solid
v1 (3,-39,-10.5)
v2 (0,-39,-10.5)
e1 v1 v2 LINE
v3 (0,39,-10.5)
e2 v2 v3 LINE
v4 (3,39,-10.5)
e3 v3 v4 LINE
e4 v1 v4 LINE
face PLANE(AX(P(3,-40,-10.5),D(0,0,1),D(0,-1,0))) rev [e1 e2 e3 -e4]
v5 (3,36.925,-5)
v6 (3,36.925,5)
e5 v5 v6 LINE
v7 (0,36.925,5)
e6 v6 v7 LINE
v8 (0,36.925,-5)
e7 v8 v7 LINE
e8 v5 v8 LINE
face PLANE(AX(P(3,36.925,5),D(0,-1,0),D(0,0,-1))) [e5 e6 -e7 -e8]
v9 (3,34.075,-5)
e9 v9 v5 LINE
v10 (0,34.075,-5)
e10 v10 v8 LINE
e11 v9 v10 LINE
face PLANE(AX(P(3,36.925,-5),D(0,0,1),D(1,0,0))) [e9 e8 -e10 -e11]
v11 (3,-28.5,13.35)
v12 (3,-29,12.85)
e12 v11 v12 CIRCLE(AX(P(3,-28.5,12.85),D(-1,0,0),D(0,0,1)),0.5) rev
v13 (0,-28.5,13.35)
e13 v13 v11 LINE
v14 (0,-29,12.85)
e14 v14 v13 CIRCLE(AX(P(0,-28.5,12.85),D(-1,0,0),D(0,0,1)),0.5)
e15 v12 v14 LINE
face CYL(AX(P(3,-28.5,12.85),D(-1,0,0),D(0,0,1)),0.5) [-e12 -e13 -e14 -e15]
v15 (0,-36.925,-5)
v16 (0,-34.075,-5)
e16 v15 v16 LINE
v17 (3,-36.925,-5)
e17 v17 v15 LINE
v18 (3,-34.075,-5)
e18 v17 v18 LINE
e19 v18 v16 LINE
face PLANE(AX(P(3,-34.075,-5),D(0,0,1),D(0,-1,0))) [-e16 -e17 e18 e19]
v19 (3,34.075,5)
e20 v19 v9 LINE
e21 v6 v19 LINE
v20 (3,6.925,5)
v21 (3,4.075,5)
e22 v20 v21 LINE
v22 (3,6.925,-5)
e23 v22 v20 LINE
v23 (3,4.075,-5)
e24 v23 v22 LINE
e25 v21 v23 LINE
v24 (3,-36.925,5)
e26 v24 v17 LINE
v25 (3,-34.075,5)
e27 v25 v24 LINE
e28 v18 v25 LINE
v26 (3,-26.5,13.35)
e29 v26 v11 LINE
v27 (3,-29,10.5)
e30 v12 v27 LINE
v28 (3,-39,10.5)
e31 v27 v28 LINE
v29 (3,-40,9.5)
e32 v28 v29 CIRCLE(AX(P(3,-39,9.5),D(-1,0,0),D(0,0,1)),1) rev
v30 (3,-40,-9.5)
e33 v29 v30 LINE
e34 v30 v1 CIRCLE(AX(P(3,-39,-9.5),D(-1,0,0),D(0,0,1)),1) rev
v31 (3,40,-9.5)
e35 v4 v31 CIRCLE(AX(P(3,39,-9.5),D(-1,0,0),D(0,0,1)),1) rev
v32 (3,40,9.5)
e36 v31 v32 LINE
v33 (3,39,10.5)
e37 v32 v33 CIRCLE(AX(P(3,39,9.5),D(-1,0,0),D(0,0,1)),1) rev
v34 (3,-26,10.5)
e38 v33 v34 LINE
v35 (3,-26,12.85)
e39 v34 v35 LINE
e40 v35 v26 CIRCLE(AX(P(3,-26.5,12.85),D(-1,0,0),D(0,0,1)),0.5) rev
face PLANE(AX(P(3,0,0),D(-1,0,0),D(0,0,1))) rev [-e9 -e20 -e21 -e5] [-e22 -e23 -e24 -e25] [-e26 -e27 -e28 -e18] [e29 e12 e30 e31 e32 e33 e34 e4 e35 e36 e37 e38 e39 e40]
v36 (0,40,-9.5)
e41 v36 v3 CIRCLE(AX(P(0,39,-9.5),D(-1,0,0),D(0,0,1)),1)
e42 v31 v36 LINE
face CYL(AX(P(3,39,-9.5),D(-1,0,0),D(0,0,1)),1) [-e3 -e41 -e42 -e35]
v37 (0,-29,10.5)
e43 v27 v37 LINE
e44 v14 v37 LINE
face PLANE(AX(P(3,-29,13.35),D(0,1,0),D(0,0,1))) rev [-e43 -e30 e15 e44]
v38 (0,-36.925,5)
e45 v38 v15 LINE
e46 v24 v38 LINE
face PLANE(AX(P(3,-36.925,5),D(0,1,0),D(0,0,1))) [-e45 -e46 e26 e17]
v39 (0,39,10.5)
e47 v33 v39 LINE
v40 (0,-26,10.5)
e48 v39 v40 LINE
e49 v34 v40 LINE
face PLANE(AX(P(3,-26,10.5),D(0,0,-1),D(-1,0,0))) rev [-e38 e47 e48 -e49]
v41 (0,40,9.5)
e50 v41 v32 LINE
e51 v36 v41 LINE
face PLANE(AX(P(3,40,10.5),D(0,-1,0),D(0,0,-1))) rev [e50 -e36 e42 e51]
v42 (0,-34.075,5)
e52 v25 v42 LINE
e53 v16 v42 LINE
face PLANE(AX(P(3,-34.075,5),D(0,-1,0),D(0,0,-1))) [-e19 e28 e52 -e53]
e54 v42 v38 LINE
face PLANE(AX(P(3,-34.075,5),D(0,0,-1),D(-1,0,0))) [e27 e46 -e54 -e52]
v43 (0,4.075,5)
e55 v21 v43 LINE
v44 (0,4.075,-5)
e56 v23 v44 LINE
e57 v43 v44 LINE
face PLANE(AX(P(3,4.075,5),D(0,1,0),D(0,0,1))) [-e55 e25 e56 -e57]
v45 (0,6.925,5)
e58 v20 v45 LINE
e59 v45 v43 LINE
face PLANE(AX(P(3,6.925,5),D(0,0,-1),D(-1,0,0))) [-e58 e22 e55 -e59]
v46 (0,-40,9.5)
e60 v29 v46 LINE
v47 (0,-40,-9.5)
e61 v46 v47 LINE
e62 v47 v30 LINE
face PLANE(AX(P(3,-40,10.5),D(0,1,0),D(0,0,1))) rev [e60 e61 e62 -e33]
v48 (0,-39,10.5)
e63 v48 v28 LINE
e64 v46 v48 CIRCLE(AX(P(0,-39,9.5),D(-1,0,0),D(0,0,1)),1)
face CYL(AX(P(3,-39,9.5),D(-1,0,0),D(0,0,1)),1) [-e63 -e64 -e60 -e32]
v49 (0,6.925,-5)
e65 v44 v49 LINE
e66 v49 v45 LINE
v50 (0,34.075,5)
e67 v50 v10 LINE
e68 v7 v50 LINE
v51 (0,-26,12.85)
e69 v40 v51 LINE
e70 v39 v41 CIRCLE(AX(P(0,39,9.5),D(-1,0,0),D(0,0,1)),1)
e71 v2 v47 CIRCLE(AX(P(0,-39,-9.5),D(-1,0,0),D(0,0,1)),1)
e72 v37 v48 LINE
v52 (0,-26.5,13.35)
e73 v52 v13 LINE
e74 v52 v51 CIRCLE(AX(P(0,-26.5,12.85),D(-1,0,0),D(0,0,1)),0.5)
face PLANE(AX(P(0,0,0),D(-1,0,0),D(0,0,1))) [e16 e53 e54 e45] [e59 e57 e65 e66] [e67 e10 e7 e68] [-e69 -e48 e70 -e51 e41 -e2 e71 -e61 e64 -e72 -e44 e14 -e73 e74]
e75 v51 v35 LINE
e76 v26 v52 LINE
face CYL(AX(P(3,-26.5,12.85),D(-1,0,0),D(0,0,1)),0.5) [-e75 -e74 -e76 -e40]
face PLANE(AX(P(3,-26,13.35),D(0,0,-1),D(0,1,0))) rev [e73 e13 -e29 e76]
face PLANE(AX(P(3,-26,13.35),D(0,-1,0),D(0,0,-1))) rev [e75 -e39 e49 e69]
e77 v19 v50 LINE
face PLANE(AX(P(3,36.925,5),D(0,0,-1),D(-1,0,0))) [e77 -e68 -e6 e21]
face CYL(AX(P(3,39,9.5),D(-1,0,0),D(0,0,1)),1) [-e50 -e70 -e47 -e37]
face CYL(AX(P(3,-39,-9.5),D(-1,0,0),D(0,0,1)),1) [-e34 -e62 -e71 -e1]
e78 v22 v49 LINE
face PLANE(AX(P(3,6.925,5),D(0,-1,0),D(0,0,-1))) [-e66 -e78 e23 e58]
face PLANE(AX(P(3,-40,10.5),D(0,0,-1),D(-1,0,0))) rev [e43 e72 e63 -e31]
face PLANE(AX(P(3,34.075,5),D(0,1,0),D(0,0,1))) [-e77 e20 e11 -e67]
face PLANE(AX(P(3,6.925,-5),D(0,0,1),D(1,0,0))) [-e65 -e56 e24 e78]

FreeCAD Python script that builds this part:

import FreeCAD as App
import Part
import Sketcher
from FreeCAD import Vector
Q = App.Units.Quantity


def edges_at(feature, points):
    """Names of the edges that pass closest to the given points."""
    edges = feature.Shape.Edges
    near = lambda p: min(range(len(edges)), key=lambda i: edges[i].distToShape(Part.Vertex(*p))[0])
    return sorted({f"Edge{near(p) + 1}" for p in points})

doc = App.newDocument("Part")
params = doc.addObject("Spreadsheet::Sheet", "Params")
for row, (alias, value) in enumerate([
    ("sketch1_width", "80 mm"),
    ("sketch1_width2", "66 mm"),
    ("sketch1_width3", "3 mm"),
    ("sketch1_height", "21 mm"),
    ("sketch1_height2", "10 mm"),
    ("pad1_length", "3 mm"),
    ("fillet_radius", "1 mm"),
    ("fillet2_radius", "0.5 mm"),
], start=1):
    params.set(f"A{row}", alias)
    params.set(f"B{row}", "=" + value)
    params.setAlias(f"B{row}", alias)

body = doc.addObject("PartDesign::Body", "Body")

sketch1 = body.newObject("Sketcher::SketchObject", "Sketch")
sketch1.AttachmentSupport = (doc.getObject("YZ_Plane"), [""])
sketch1.MapMode = "FlatFace"
sketch1.addGeometry([
    Part.LineSegment(Vector(-40, 10.5, 0), Vector(-40, -10.5, 0)),
    Part.LineSegment(Vector(-40, -10.5, 0), Vector(40, -10.5, 0)),
    Part.LineSegment(Vector(40, -10.5, 0), Vector(40, 10.5, 0)),
    Part.LineSegment(Vector(40, 10.5, 0), Vector(-26, 10.5, 0)),
    Part.LineSegment(Vector(-26, 10.5, 0), Vector(-26, 13.3, 0)),
    Part.LineSegment(Vector(-26, 13.3, 0), Vector(-29, 13.3, 0)),
    Part.LineSegment(Vector(-29, 13.3, 0), Vector(-29, 10.5, 0)),
    Part.LineSegment(Vector(-29, 10.5, 0), Vector(-40, 10.5, 0)),
    Part.LineSegment(Vector(-36.9, -5, 0), Vector(-36.9, 5, 0)),
    Part.LineSegment(Vector(-36.9, 5, 0), Vector(-34.1, 5, 0)),
    Part.LineSegment(Vector(-34.1, 5, 0), Vector(-34.1, -5, 0)),
    Part.LineSegment(Vector(-34.1, -5, 0), Vector(-36.9, -5, 0)),
    Part.LineSegment(Vector(4.1, -5, 0), Vector(4.1, 5, 0)),
    Part.LineSegment(Vector(4.1, 5, 0), Vector(6.9, 5, 0)),
    Part.LineSegment(Vector(6.9, 5, 0), Vector(6.9, -5, 0)),
    Part.LineSegment(Vector(6.9, -5, 0), Vector(4.1, -5, 0)),
    Part.LineSegment(Vector(34.1, -5, 0), Vector(34.1, 5, 0)),
    Part.LineSegment(Vector(34.1, 5, 0), Vector(36.9, 5, 0)),
    Part.LineSegment(Vector(36.9, 5, 0), Vector(36.9, -5, 0)),
    Part.LineSegment(Vector(36.9, -5, 0), Vector(34.1, -5, 0)),
], False)
sketch1.addConstraint([
    Sketcher.Constraint("Coincident", 0, 2, 1, 1),
    Sketcher.Constraint("Coincident", 1, 2, 2, 1),
    Sketcher.Constraint("Coincident", 2, 2, 3, 1),
    Sketcher.Constraint("Coincident", 3, 2, 4, 1),
    Sketcher.Constraint("Coincident", 4, 2, 5, 1),
    Sketcher.Constraint("Coincident", 5, 2, 6, 1),
    Sketcher.Constraint("Coincident", 6, 2, 7, 1),
    Sketcher.Constraint("Coincident", 7, 2, 0, 1),
    Sketcher.Constraint("Coincident", 8, 2, 9, 1),
    Sketcher.Constraint("Coincident", 9, 2, 10, 1),
    Sketcher.Constraint("Coincident", 10, 2, 11, 1),
    Sketcher.Constraint("Coincident", 11, 2, 8, 1),
    Sketcher.Constraint("Coincident", 12, 2, 13, 1),
    Sketcher.Constraint("Coincident", 13, 2, 14, 1),
    Sketcher.Constraint("Coincident", 14, 2, 15, 1),
    Sketcher.Constraint("Coincident", 15, 2, 12, 1),
    Sketcher.Constraint("Coincident", 16, 2, 17, 1),
    Sketcher.Constraint("Coincident", 17, 2, 18, 1),
    Sketcher.Constraint("Coincident", 18, 2, 19, 1),
    Sketcher.Constraint("Coincident", 19, 2, 16, 1),
    Sketcher.Constraint("Vertical", 0),
    Sketcher.Constraint("Horizontal", 1),
    Sketcher.Constraint("Vertical", 2),
    Sketcher.Constraint("Horizontal", 3),
    Sketcher.Constraint("Vertical", 4),
    Sketcher.Constraint("Horizontal", 5),
    Sketcher.Constraint("Vertical", 6),
    Sketcher.Constraint("Horizontal", 7),
    Sketcher.Constraint("Vertical", 8),
    Sketcher.Constraint("Horizontal", 9),
    Sketcher.Constraint("Vertical", 10),
    Sketcher.Constraint("Horizontal", 11),
    Sketcher.Constraint("Vertical", 12),
    Sketcher.Constraint("Horizontal", 13),
    Sketcher.Constraint("Vertical", 14),
    Sketcher.Constraint("Horizontal", 15),
    Sketcher.Constraint("Vertical", 16),
    Sketcher.Constraint("Horizontal", 17),
    Sketcher.Constraint("Vertical", 18),
    Sketcher.Constraint("Horizontal", 19),
    Sketcher.Constraint("Symmetric", 0, 2, 2, 2, -1, 1),
    Sketcher.Constraint("Symmetric", 10, 2, 16, 2, -1, 1),
    Sketcher.Constraint("Symmetric", 8, 2, 18, 2, -1, 1),
    Sketcher.Constraint("Horizontal", 3, 2, 6, 2),
    Sketcher.Constraint("Horizontal", 9, 2, 12, 2),
    Sketcher.Constraint("Horizontal", 11, 2, 14, 2),
    Sketcher.Constraint("Horizontal", 13, 2, 16, 2),
    Sketcher.Constraint("Equal", 11, 13),
    Sketcher.Constraint("Equal", 19, 4),
    Sketcher.Constraint("DistanceX", 1, 1, 1, 2, Q("80 mm")),
    Sketcher.Constraint("DistanceX", 3, 2, 3, 1, Q("66 mm")),
    Sketcher.Constraint("DistanceX", 5, 2, 5, 1, Q("3 mm")),
    Sketcher.Constraint("DistanceY", 0, 2, 0, 1, Q("21 mm")),
    Sketcher.Constraint("DistanceY", 8, 1, 8, 2, Q("10 mm")),
    Sketcher.Constraint("DistanceX", 12, 2, 16, 2, Q("30 mm")),
    Sketcher.Constraint("DistanceX", 9, 1, 9, 2, Q("2.85 mm")),
    Sketcher.Constraint("DistanceX", 8, 2, -1, 1, Q("36.925 mm")),
])
sketch1.setExpression("Constraints[49]", "Params.sketch1_width")
sketch1.setExpression("Constraints[50]", "Params.sketch1_width2")
sketch1.setExpression("Constraints[51]", "Params.sketch1_width3")
sketch1.setExpression("Constraints[52]", "Params.sketch1_height")
sketch1.setExpression("Constraints[53]", "Params.sketch1_height2")
pad1 = body.newObject("PartDesign::Pad", "Pad")
pad1.Profile = sketch1
pad1.setExpression("Length", "Params.pad1_length")
doc.recompute()

fillet = body.newObject("PartDesign::Fillet", "Fillet")
fillet.Base = (pad1, edges_at(pad1, [
    (1.5, -40, -10.5),
    (1.5, -40, 10.5),
    (1.5, 40, 10.5),
    (1.5, 40, -10.5),
]))
fillet.setExpression("Radius", "Params.fillet_radius")
doc.recompute()

fillet2 = body.newObject("PartDesign::Fillet", "Fillet001")
fillet2.Base = (fillet, edges_at(fillet, [(1.5, -29, 13.35), (1.5, -26, 13.35)]))
fillet2.setExpression("Radius", "Params.fillet2_radius")

doc.recompute()
